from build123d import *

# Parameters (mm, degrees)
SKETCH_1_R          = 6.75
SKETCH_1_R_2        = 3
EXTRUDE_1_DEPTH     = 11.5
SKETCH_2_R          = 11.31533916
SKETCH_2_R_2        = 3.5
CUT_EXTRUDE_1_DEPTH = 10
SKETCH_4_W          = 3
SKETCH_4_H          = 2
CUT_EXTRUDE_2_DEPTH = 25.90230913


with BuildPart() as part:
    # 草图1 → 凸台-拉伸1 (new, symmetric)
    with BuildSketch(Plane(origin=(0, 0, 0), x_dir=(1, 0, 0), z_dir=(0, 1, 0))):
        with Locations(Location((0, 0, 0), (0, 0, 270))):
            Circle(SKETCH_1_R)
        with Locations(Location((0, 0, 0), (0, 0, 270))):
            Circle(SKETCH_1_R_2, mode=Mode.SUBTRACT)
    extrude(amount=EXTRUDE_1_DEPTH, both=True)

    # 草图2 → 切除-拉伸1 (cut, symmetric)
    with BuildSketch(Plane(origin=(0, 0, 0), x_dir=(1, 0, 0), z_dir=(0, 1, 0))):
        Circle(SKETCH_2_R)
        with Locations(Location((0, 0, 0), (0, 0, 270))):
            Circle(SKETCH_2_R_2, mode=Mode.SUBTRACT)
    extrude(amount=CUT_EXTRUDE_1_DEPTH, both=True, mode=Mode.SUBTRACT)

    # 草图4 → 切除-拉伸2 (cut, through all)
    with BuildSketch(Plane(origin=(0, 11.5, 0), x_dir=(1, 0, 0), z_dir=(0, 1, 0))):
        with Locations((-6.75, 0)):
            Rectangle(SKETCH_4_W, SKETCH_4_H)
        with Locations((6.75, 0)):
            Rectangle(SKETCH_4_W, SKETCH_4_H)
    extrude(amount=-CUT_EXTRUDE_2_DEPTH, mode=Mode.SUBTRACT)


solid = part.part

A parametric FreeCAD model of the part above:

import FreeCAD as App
import Part
import Sketcher

doc = App.newDocument("Part")
body = doc.addObject("PartDesign::Body", "Body")

sketch1 = body.newObject("Sketcher::SketchObject", "Sketch")
sketch1.AttachmentSupport = (doc.getObject("XZ_Plane"), [""])
sketch1.MapMode = "FlatFace"
sketch1.addGeometry(Part.Circle(App.Vector(0, 0, 0), App.Vector(0, 0, 1), 6.8), False)
sketch1.addGeometry(Part.Circle(App.Vector(0, 0, 0), App.Vector(0, 0, 1), 3), False)
sketch1.addConstraint(Sketcher.Constraint("Coincident", 0, 3, -1, 1))
sketch1.addConstraint(Sketcher.Constraint("Coincident", 1, 3, -1, 1))
sketch1.addConstraint(Sketcher.Constraint("Diameter", 1, 6.0))
sketch1.addConstraint(Sketcher.Constraint("Diameter", 0, 13.5))
pad1 = body.newObject("PartDesign::Pad", "Pad")
pad1.Profile = sketch1
pad1.Length = 23
pad1.Midplane = True

sketch2 = body.newObject("Sketcher::SketchObject", "Sketch001")
sketch2.AttachmentSupport = (doc.getObject("XZ_Plane"), [""])
sketch2.MapMode = "FlatFace"
sketch2.addGeometry(Part.Circle(App.Vector(0, 0, 0), App.Vector(0, 0, 1), 11.3), False)
sketch2.addGeometry(Part.Circle(App.Vector(0, 0, 0), App.Vector(0, 0, 1), 3.5), False)
sketch2.addConstraint(Sketcher.Constraint("Coincident", 0, 3, -1, 1))
sketch2.addConstraint(Sketcher.Constraint("Coincident", 1, 3, -1, 1))
sketch2.addConstraint(Sketcher.Constraint("Diameter", 1, 7.0))
sketch2.addConstraint(Sketcher.Constraint("Diameter", 0, 22.630678))
pocket1 = body.newObject("PartDesign::Pocket", "Pocket")
pocket1.Profile = sketch2
pocket1.Length = 20
pocket1.Midplane = True

sketch3 = body.newObject("Sketcher::SketchObject", "Sketch002")
sketch3.AttachmentSupport = (doc.getObject("XZ_Plane"), [""])
sketch3.MapMode = "FlatFace"
sketch3.AttachmentOffset = App.Placement(App.Vector(0, 0, -11.5), App.Rotation())
sketch3.addGeometry(Part.LineSegment(App.Vector(-8.2, -1, 0), App.Vector(-8.2, 1, 0)), False)
sketch3.addGeometry(Part.LineSegment(App.Vector(-8.2, 1, 0), App.Vector(-5.2, 1, 0)), False)
sketch3.addGeometry(Part.LineSegment(App.Vector(-5.2, 1, 0), App.Vector(-5.2, -1, 0)), False)
sketch3.addGeometry(Part.LineSegment(App.Vector(-5.2, -1, 0), App.Vector(-8.2, -1, 0)), False)
sketch3.addGeometry(Part.LineSegment(App.Vector(5.2, -1, 0), App.Vector(5.2, 1, 0)), False)
sketch3.addGeometry(Part.LineSegment(App.Vector(5.2, 1, 0), App.Vector(8.2, 1, 0)), False)
sketch3.addGeometry(Part.LineSegment(App.Vector(8.2, 1, 0), App.Vector(8.2, -1, 0)), False)
sketch3.addGeometry(Part.LineSegment(App.Vector(8.2, -1, 0), App.Vector(5.2, -1, 0)), False)
sketch3.addConstraint(Sketcher.Constraint("Coincident", 0, 2, 1, 1))
sketch3.addConstraint(Sketcher.Constraint("Coincident", 1, 2, 2, 1))
sketch3.addConstraint(Sketcher.Constraint("Coincident", 2, 2, 3, 1))
sketch3.addConstraint(Sketcher.Constraint("Coincident", 3, 2, 0, 1))
sketch3.addConstraint(Sketcher.Constraint("Coincident", 4, 2, 5, 1))
sketch3.addConstraint(Sketcher.Constraint("Coincident", 5, 2, 6, 1))
sketch3.addConstraint(Sketcher.Constraint("Coincident", 6, 2, 7, 1))
sketch3.addConstraint(Sketcher.Constraint("Coincident", 7, 2, 4, 1))
sketch3.addConstraint(Sketcher.Constraint("Vertical", 0))
sketch3.addConstraint(Sketcher.Constraint("Horizontal", 1))
sketch3.addConstraint(Sketcher.Constraint("Vertical", 2))
sketch3.addConstraint(Sketcher.Constraint("Horizontal", 3))
sketch3.addConstraint(Sketcher.Constraint("Vertical", 4))
sketch3.addConstraint(Sketcher.Constraint("Horizontal", 5))
sketch3.addConstraint(Sketcher.Constraint("Vertical", 6))
sketch3.addConstraint(Sketcher.Constraint("Horizontal", 7))
sketch3.addConstraint(Sketcher.Constraint("Symmetric", 2, 2, 4, 2, -1, 1))
sketch3.addConstraint(Sketcher.Constraint("Symmetric", 0, 2, 6, 2, -1, 1))
sketch3.addConstraint(Sketcher.Constraint("Horizontal", 1, 2, 4, 2))
sketch3.addConstraint(Sketcher.Constraint("DistanceX", 1, 1, 1, 2, 3.0))
sketch3.addConstraint(Sketcher.Constraint("DistanceY", 0, 1, 0, 2, 2.0))
sketch3.addConstraint(Sketcher.Constraint("DistanceX", 1, 2, 4, 2, 10.5))
pocket2 = body.newObject("PartDesign::Pocket", "Pocket001")
pocket2.Profile = sketch3
pocket2.Type = "ThroughAll"
pocket2.Reversed = True

doc.recompute()
